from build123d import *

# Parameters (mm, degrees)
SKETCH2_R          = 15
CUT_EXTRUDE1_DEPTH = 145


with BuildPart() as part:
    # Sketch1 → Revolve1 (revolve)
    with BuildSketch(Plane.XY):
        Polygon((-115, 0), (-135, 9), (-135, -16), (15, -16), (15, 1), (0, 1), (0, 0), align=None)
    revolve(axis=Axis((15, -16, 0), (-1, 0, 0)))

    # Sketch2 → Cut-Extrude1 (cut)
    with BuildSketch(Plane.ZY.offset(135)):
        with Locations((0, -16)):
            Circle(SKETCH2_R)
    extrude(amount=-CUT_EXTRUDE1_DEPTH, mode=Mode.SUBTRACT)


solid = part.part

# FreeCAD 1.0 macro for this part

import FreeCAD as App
import Part
import Sketcher
from FreeCAD import Vector
Q = App.Units.Quantity

doc = App.newDocument("Part")
body = doc.addObject("PartDesign::Body", "Body")

sketch1 = doc.addObject("Sketcher::SketchObject", "Sketch")
body.addObject(sketch1)
sketch1.AttachmentSupport = (doc.XY_Plane, [""])
sketch1.MapMode = "FlatFace"
sketch1.addGeometry([
    Part.LineSegment(Vector(-115, 0, 0), Vector(-135, 9, 0)),
    Part.LineSegment(Vector(-135, 9, 0), Vector(-135, -16, 0)),
    Part.LineSegment(Vector(-135, -16, 0), Vector(15, -16, 0)),
    Part.LineSegment(Vector(15, -16, 0), Vector(15, 1, 0)),
    Part.LineSegment(Vector(15, 1, 0), Vector(0, 1, 0)),
    Part.LineSegment(Vector(0, 1, 0), Vector(0, 0, 0)),
    Part.LineSegment(Vector(0, 0, 0), Vector(-115, 0, 0)),
], False)
sketch1.addGeometry(Part.LineSegment(Vector(15, -16, 0), Vector(-135, -16, 0)), True)
sketch1.addConstraint([
    Sketcher.Constraint("Coincident", 0, 2, 1, 1),
    Sketcher.Constraint("Coincident", 1, 2, 2, 1),
    Sketcher.Constraint("Coincident", 2, 2, 3, 1),
    Sketcher.Constraint("Coincident", 3, 2, 4, 1),
    Sketcher.Constraint("Coincident", 4, 2, 5, 1),
    Sketcher.Constraint("Coincident", 5, 2, 6, 1),
    Sketcher.Constraint("Coincident", 6, 2, 0, 1),
    Sketcher.Constraint("Vertical", 1),
    Sketcher.Constraint("Horizontal", 2),
    Sketcher.Constraint("Vertical", 3),
    Sketcher.Constraint("Horizontal", 4),
    Sketcher.Constraint("Vertical", 5),
    Sketcher.Constraint("Horizontal", 6),
    Sketcher.Constraint("Horizontal", 7),
    Sketcher.Constraint("Coincident", 5, 2, -1, 1),
    Sketcher.Constraint("Coincident", 7, 1, 2, 2),
    Sketcher.Constraint("Vertical", 0, 2, 7, 2),
    Sketcher.Constraint("DistanceX", 2, 1, 2, 2, Q("150 mm")),
    Sketcher.Constraint("DistanceX", 4, 2, 4, 1, Q("15 mm")),
    Sketcher.Constraint("DistanceX", 6, 2, 6, 1, Q("115 mm")),
    Sketcher.Constraint("DistanceY", 1, 2, 1, 1, Q("25 mm")),
    Sketcher.Constraint("DistanceY", 3, 1, 3, 2, Q("17 mm")),
    Sketcher.Constraint("DistanceY", 5, 2, 5, 1, Q("1 mm")),
])
revolution = doc.addObject("PartDesign::Revolution", "Revolution")
body.addObject(revolution)
revolution.Profile = sketch1
revolution.ReferenceAxis = (sketch1, ["Axis0"])
revolution.Angle = 360

sketch2 = doc.addObject("Sketcher::SketchObject", "Sketch001")
body.addObject(sketch2)
sketch2.AttachmentSupport = (doc.YZ_Plane, [""])
sketch2.MapMode = "FlatFace"
sketch2.AttachmentOffset = App.Placement(Vector(0, 0, -135), App.Rotation())
sketch2.addGeometry(Part.Circle(Vector(-16, 0, 0), Vector(0, 0, 1), 15), False)
sketch2.addConstraint([
    Sketcher.Constraint("PointOnObject", 0, 3, -1),
    Sketcher.Constraint("Diameter", 0, Q("30 mm")),
    Sketcher.Constraint("DistanceX", 0, 3, -1, 1, Q("16 mm")),
])
pocket1 = doc.addObject("PartDesign::Pocket", "Pocket")
body.addObject(pocket1)
pocket1.Profile = sketch2
pocket1.Length = 145
pocket1.Reversed = True

doc.recompute()
